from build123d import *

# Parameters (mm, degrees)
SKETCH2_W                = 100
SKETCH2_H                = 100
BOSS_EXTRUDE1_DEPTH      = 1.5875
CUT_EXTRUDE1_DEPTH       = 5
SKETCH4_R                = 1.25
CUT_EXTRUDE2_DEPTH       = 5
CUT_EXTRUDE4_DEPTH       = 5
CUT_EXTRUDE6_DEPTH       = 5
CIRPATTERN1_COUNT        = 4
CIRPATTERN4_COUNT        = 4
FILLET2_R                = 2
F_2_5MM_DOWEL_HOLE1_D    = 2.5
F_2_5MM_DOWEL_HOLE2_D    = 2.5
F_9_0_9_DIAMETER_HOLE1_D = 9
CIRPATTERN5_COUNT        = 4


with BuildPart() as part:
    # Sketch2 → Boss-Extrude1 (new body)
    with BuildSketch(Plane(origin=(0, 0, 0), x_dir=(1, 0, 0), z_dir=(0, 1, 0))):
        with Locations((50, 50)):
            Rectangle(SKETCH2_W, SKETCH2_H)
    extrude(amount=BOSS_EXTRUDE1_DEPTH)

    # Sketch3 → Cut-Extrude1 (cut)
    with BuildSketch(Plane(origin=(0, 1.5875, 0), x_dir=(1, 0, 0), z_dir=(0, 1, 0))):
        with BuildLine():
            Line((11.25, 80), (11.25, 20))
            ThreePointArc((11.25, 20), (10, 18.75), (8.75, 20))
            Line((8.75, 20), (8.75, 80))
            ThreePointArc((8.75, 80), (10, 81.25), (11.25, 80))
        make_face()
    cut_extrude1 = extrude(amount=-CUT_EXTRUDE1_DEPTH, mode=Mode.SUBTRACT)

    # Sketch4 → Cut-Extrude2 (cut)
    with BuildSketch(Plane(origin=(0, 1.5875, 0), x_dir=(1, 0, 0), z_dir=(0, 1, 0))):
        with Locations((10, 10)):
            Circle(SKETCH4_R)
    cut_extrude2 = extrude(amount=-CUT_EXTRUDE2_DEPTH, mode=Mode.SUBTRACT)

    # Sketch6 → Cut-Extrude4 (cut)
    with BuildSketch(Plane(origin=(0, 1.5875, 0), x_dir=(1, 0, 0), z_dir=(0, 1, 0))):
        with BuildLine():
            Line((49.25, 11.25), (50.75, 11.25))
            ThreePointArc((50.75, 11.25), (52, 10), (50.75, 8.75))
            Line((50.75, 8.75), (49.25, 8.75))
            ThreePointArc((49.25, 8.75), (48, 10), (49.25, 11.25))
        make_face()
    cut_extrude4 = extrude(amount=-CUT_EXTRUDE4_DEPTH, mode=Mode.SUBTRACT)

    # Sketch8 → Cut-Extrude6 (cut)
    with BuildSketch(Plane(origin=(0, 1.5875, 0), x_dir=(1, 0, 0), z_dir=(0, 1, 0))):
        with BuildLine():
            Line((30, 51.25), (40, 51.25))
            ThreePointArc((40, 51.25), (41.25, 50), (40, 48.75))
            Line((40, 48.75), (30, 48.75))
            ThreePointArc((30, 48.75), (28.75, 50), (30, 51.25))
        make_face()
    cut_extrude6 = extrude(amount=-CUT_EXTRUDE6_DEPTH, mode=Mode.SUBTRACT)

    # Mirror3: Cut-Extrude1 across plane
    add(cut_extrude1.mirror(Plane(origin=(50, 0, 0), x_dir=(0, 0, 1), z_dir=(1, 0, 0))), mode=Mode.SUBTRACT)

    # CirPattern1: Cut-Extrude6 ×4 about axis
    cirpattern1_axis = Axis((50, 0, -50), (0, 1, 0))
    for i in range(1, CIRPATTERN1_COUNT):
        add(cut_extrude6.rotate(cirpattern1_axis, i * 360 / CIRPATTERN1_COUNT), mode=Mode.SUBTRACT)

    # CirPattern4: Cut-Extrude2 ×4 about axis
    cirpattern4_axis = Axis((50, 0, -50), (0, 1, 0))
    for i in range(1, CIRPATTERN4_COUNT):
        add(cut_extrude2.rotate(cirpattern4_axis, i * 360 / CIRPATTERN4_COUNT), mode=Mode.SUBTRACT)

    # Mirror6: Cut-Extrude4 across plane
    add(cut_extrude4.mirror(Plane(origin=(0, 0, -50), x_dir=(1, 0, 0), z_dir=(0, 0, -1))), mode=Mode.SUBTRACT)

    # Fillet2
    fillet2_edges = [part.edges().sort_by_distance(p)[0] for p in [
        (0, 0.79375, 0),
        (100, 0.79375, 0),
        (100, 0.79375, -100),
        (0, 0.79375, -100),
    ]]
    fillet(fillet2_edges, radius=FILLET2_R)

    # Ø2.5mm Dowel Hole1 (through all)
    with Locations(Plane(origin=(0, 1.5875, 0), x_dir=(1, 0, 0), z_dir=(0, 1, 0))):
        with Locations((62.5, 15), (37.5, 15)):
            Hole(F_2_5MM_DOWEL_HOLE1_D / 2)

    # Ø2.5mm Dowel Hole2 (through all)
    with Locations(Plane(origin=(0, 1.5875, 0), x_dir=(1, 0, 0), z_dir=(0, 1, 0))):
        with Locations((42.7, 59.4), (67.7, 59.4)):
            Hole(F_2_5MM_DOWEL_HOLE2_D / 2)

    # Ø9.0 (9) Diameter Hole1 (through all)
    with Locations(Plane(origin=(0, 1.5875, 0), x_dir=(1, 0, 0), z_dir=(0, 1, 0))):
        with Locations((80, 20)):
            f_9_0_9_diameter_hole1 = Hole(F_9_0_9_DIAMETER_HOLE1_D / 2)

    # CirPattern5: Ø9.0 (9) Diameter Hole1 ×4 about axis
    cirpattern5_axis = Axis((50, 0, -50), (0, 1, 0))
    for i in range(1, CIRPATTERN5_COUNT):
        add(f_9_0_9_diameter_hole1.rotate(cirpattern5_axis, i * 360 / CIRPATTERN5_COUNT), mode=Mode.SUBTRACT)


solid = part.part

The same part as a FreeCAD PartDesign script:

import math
import FreeCAD as App
import Part
import Sketcher
from FreeCAD import Vector


def edges_at(feature, points):
    """Names of the edges that pass closest to the given points."""
    edges = feature.Shape.Edges
    near = lambda p: min(range(len(edges)), key=lambda i: edges[i].distToShape(Part.Vertex(*p))[0])
    return sorted({f"Edge{near(p) + 1}" for p in points})

doc = App.newDocument("Part")
body = doc.addObject("PartDesign::Body", "Body")

# Sketch on XZ plane
sketch1 = body.newObject("Sketcher::SketchObject", "Sketch")
sketch1.AttachmentSupport = (doc.getObject("XZ_Plane"), [""])
sketch1.MapMode = "FlatFace"
sketch1.addGeometry([
    Part.LineSegment(Vector(0, -100, 0), Vector(0, 0, 0)),
    Part.LineSegment(Vector(0, 0, 0), Vector(100, 0, 0)),
    Part.LineSegment(Vector(100, 0, 0), Vector(100, -100, 0)),
    Part.LineSegment(Vector(100, -100, 0), Vector(0, -100, 0)),
], False)
sketch1.addConstraint([
    Sketcher.Constraint("Coincident", 0, 2, 1, 1),
    Sketcher.Constraint("Coincident", 1, 2, 2, 1),
    Sketcher.Constraint("Coincident", 2, 2, 3, 1),
    Sketcher.Constraint("Coincident", 3, 2, 0, 1),
    Sketcher.Constraint("Vertical", 0),
    Sketcher.Constraint("Horizontal", 1),
    Sketcher.Constraint("Vertical", 2),
    Sketcher.Constraint("Horizontal", 3),
    Sketcher.Constraint("Coincident", 0, 2, -1, 1),
    Sketcher.Constraint("Equal", 3, 0),
    Sketcher.Constraint("DistanceX", 1, 1, 1, 2, 100.0),
])
pad1 = body.newObject("PartDesign::Pad", "Pad")
pad1.Profile = sketch1
pad1.Length = 1.5875
pad1.Reversed = True

# Sketch on XZ plane
sketch2 = body.newObject("Sketcher::SketchObject", "Sketch001")
sketch2.AttachmentSupport = (doc.getObject("XZ_Plane"), [""])
sketch2.MapMode = "FlatFace"
sketch2.AttachmentOffset = App.Placement(Vector(0, 0, -1.5875), App.Rotation())
sketch2.addGeometry([
    Part.LineSegment(Vector(11.2, -20, 0), Vector(11.2, -80, 0)),
    Part.ArcOfCircle(Part.Circle(Vector(10, -80, 0), Vector(0, 0, 1), 1.2), math.radians(180), math.radians(360)),
    Part.LineSegment(Vector(8.8, -80, 0), Vector(8.8, -20, 0)),
    Part.ArcOfCircle(Part.Circle(Vector(10, -20, 0), Vector(0, 0, 1), 1.2), math.radians(0), math.radians(180)),
], False)
sketch2.addConstraint([
    Sketcher.Constraint("Tangent", 0, 2, 1, 2),
    Sketcher.Constraint("Tangent", 1, 1, 2, 1),
    Sketcher.Constraint("Tangent", 2, 2, 3, 2),
    Sketcher.Constraint("Tangent", 3, 1, 0, 1),
    Sketcher.Constraint("Vertical", 0),
    Sketcher.Constraint("Vertical", 2),
    Sketcher.Constraint("DistanceY", 0, 2, 0, 1, 60.0),
    Sketcher.Constraint("Radius", 1, 1.25),
    Sketcher.Constraint("DistanceX", -1, 1, 1, 3, 10.0),
    Sketcher.Constraint("DistanceY", 1, 3, -1, 1, 80.0),
])
pocket1 = body.newObject("PartDesign::Pocket", "Pocket")
pocket1.Profile = sketch2
pocket1.Length = 5
pocket1.Reversed = True

# Sketch on XZ plane
sketch3 = body.newObject("Sketcher::SketchObject", "Sketch002")
sketch3.AttachmentSupport = (doc.getObject("XZ_Plane"), [""])
sketch3.MapMode = "FlatFace"
sketch3.AttachmentOffset = App.Placement(Vector(0, 0, -1.5875), App.Rotation())
sketch3.addGeometry(Part.Circle(Vector(10, -10, 0), Vector(0, 0, 1), 1.2), False)
sketch3.addConstraint([
    Sketcher.Constraint("Diameter", 0, 2.5),
    Sketcher.Constraint("DistanceX", -1, 1, 0, 3, 10.0),
    Sketcher.Constraint("DistanceY", 0, 3, -1, 1, 10.0),
])
pocket2 = body.newObject("PartDesign::Pocket", "Pocket001")
pocket2.Profile = sketch3
pocket2.Length = 5
pocket2.Reversed = True

# Sketch on XZ plane
sketch4 = body.newObject("Sketcher::SketchObject", "Sketch003")
sketch4.AttachmentSupport = (doc.getObject("XZ_Plane"), [""])
sketch4.MapMode = "FlatFace"
sketch4.AttachmentOffset = App.Placement(Vector(0, 0, -1.5875), App.Rotation())
sketch4.addGeometry([
    Part.LineSegment(Vector(50.8, -11.2, 0), Vector(49.2, -11.2, 0)),
    Part.ArcOfCircle(Part.Circle(Vector(49.2, -10, 0), Vector(0, 0, 1), 1.2), math.radians(90), math.radians(270)),
    Part.LineSegment(Vector(49.2, -8.8, 0), Vector(50.8, -8.8, 0)),
    Part.ArcOfCircle(Part.Circle(Vector(50.8, -10, 0), Vector(0, 0, 1), 1.2), math.radians(-90), math.radians(90)),
], False)
sketch4.addConstraint([
    Sketcher.Constraint("Tangent", 0, 2, 1, 2),
    Sketcher.Constraint("Tangent", 1, 1, 2, 1),
    Sketcher.Constraint("Tangent", 2, 2, 3, 2),
    Sketcher.Constraint("Tangent", 3, 1, 0, 1),
    Sketcher.Constraint("Horizontal", 0),
    Sketcher.Constraint("Horizontal", 2),
    Sketcher.Constraint("Radius", 1, 1.25),
    Sketcher.Constraint("DistanceX", 0, 2, 0, 1, 1.5),
    Sketcher.Constraint("DistanceY", 1, 3, -1, 1, 10.0),
    Sketcher.Constraint("DistanceX", -1, 1, 1, 3, 49.25),
])
pocket3 = body.newObject("PartDesign::Pocket", "Pocket002")
pocket3.Profile = sketch4
pocket3.Length = 5
pocket3.Reversed = True

# Sketch on XZ plane
sketch5 = body.newObject("Sketcher::SketchObject", "Sketch004")
sketch5.AttachmentSupport = (doc.getObject("XZ_Plane"), [""])
sketch5.MapMode = "FlatFace"
sketch5.AttachmentOffset = App.Placement(Vector(0, 0, -1.5875), App.Rotation())
sketch5.addGeometry([
    Part.LineSegment(Vector(40, -51.2, 0), Vector(30, -51.2, 0)),
    Part.ArcOfCircle(Part.Circle(Vector(30, -50, 0), Vector(0, 0, 1), 1.2), math.radians(90), math.radians(270)),
    Part.LineSegment(Vector(30, -48.8, 0), Vector(40, -48.8, 0)),
    Part.ArcOfCircle(Part.Circle(Vector(40, -50, 0), Vector(0, 0, 1), 1.2), math.radians(-90), math.radians(90)),
], False)
sketch5.addConstraint([
    Sketcher.Constraint("Tangent", 0, 2, 1, 2),
    Sketcher.Constraint("Tangent", 1, 1, 2, 1),
    Sketcher.Constraint("Tangent", 2, 2, 3, 2),
    Sketcher.Constraint("Tangent", 3, 1, 0, 1),
    Sketcher.Constraint("Horizontal", 0),
    Sketcher.Constraint("Horizontal", 2),
    Sketcher.Constraint("DistanceX", 0, 2, 0, 1, 10.0),
    Sketcher.Constraint("Radius", 1, 1.25),
    Sketcher.Constraint("DistanceX", -1, 1, 1, 3, 30.0),
    Sketcher.Constraint("DistanceY", 1, 3, -1, 1, 50.0),
])
pocket4 = body.newObject("PartDesign::Pocket", "Pocket003")
pocket4.Profile = sketch5
pocket4.Length = 5
pocket4.Reversed = True
doc.recompute()

datumplane = body.newObject("PartDesign::Plane", "DatumPlane")
datumplane.AttachmentSupport = (doc.getObject("YZ_Plane"), [""])
datumplane.MapMode = "FlatFace"
datumplane.AttachmentOffset = App.Placement(Vector(0, 0, 50), App.Rotation())
mirrored = body.newObject("PartDesign::Mirrored", "Mirrored")
mirrored.Originals = [pocket1]
mirrored.MirrorPlane = (datumplane, [""])
body.Tip = mirrored
doc.recompute()

datumline = body.newObject("PartDesign::Line", "DatumLine")
datumline.Placement = App.Placement(Vector(50, 0, -50), App.Rotation(Vector(0, 0, 1), Vector(0, 1, 0)))
polarpattern = body.newObject("PartDesign::PolarPattern", "PolarPattern")
polarpattern.Originals = [pocket4]
polarpattern.Axis = (datumline, [""])
polarpattern.Angle = 360
polarpattern.Occurrences = 4
body.Tip = polarpattern
doc.recompute()

datumline2 = body.newObject("PartDesign::Line", "DatumLine001")
datumline2.Placement = App.Placement(Vector(50, 0, -50), App.Rotation(Vector(0, 0, 1), Vector(0, 1, 0)))
polarpattern2 = body.newObject("PartDesign::PolarPattern", "PolarPattern001")
polarpattern2.Originals = [pocket2]
polarpattern2.Axis = (datumline2, [""])
polarpattern2.Angle = 360
polarpattern2.Occurrences = 4
body.Tip = polarpattern2
doc.recompute()

datumplane2 = body.newObject("PartDesign::Plane", "DatumPlane001")
datumplane2.AttachmentSupport = (doc.getObject("XY_Plane"), [""])
datumplane2.MapMode = "FlatFace"
datumplane2.AttachmentOffset = App.Placement(Vector(0, 0, -50), App.Rotation())
mirrored2 = body.newObject("PartDesign::Mirrored", "Mirrored001")
mirrored2.Originals = [pocket3]
mirrored2.MirrorPlane = (datumplane2, [""])
body.Tip = mirrored2
doc.recompute()

fillet = body.newObject("PartDesign::Fillet", "Fillet")
fillet.Base = (mirrored2, edges_at(mirrored2, [
    (0, 0.794, 0),
    (100, 0.794, 0),
    (100, 0.794, -100),
    (0, 0.794, -100),
]))
fillet.Radius = 2

# Sketch on XZ plane
sketch6 = body.newObject("Sketcher::SketchObject", "Sketch005")
sketch6.AttachmentSupport = (doc.getObject("XZ_Plane"), [""])
sketch6.MapMode = "FlatFace"
sketch6.AttachmentOffset = App.Placement(Vector(0, 0, -1.5875), App.Rotation())
sketch6.addGeometry([
    Part.Circle(Vector(62.5, -15, 0), Vector(0, 0, 1), 1.2),
    Part.Circle(Vector(37.5, -15, 0), Vector(0, 0, 1), 1.2),
], False)
sketch6.addConstraint([
    Sketcher.Constraint("Equal", 0, 1),
    Sketcher.Constraint("Horizontal", 0, 3, 1, 3),
    Sketcher.Constraint("Diameter", 0, 2.5),
    Sketcher.Constraint("DistanceY", 0, 3, -1, 1, 15.0),
    Sketcher.Constraint("DistanceX", 1, 3, 0, 3, 25.0),
    Sketcher.Constraint("DistanceX", -1, 1, 0, 3, 62.5),
])
doc.recompute()
hole = body.newObject("PartDesign::Hole", "Hole")
hole.Profile = sketch6
hole.ThreadType = "None"
hole.Diameter = 2.5
hole.DepthType = "ThroughAll"
hole.Reversed = True

# Sketch on XZ plane
sketch7 = body.newObject("Sketcher::SketchObject", "Sketch006")
sketch7.AttachmentSupport = (doc.getObject("XZ_Plane"), [""])
sketch7.MapMode = "FlatFace"
sketch7.AttachmentOffset = App.Placement(Vector(0, 0, -1.5875), App.Rotation())
sketch7.addGeometry([
    Part.Circle(Vector(42.7, -59.4, 0), Vector(0, 0, 1), 1.2),
    Part.Circle(Vector(67.7, -59.4, 0), Vector(0, 0, 1), 1.2),
], False)
sketch7.addConstraint([
    Sketcher.Constraint("Equal", 0, 1),
    Sketcher.Constraint("Horizontal", 0, 3, 1, 3),
    Sketcher.Constraint("Diameter", 0, 2.5),
    Sketcher.Constraint("DistanceX", 0, 3, 1, 3, 25.0),
    Sketcher.Constraint("DistanceX", -1, 1, 0, 3, 42.7),
    Sketcher.Constraint("DistanceY", 0, 3, -1, 1, 59.4),
])
doc.recompute()
hole2 = body.newObject("PartDesign::Hole", "Hole001")
hole2.Profile = sketch7
hole2.ThreadType = "None"
hole2.Diameter = 2.5
hole2.DepthType = "ThroughAll"
hole2.Reversed = True

# Sketch on XZ plane
sketch8 = body.newObject("Sketcher::SketchObject", "Sketch007")
sketch8.AttachmentSupport = (doc.getObject("XZ_Plane"), [""])
sketch8.MapMode = "FlatFace"
sketch8.AttachmentOffset = App.Placement(Vector(0, 0, -1.5875), App.Rotation())
sketch8.addGeometry(Part.Circle(Vector(80, -20, 0), Vector(0, 0, 1), 4.5), False)
sketch8.addConstraint([
    Sketcher.Constraint("Diameter", 0, 9.0),
    Sketcher.Constraint("DistanceX", -1, 1, 0, 3, 80.0),
    Sketcher.Constraint("DistanceY", 0, 3, -1, 1, 20.0),
])
doc.recompute()
hole3 = body.newObject("PartDesign::Hole", "Hole002")
hole3.Profile = sketch8
hole3.ThreadType = "None"
hole3.Diameter = 9
hole3.DepthType = "ThroughAll"
hole3.Reversed = True
doc.recompute()

datumline3 = body.newObject("PartDesign::Line", "DatumLine002")
datumline3.Placement = App.Placement(Vector(50, 0, -50), App.Rotation(Vector(0, 0, 1), Vector(0, 1, 0)))
polarpattern3 = body.newObject("PartDesign::PolarPattern", "PolarPattern002")
polarpattern3.Originals = [hole3]
polarpattern3.Axis = (datumline3, [""])
polarpattern3.Angle = 360
polarpattern3.Occurrences = 4
body.Tip = polarpattern3

doc.recompute()
